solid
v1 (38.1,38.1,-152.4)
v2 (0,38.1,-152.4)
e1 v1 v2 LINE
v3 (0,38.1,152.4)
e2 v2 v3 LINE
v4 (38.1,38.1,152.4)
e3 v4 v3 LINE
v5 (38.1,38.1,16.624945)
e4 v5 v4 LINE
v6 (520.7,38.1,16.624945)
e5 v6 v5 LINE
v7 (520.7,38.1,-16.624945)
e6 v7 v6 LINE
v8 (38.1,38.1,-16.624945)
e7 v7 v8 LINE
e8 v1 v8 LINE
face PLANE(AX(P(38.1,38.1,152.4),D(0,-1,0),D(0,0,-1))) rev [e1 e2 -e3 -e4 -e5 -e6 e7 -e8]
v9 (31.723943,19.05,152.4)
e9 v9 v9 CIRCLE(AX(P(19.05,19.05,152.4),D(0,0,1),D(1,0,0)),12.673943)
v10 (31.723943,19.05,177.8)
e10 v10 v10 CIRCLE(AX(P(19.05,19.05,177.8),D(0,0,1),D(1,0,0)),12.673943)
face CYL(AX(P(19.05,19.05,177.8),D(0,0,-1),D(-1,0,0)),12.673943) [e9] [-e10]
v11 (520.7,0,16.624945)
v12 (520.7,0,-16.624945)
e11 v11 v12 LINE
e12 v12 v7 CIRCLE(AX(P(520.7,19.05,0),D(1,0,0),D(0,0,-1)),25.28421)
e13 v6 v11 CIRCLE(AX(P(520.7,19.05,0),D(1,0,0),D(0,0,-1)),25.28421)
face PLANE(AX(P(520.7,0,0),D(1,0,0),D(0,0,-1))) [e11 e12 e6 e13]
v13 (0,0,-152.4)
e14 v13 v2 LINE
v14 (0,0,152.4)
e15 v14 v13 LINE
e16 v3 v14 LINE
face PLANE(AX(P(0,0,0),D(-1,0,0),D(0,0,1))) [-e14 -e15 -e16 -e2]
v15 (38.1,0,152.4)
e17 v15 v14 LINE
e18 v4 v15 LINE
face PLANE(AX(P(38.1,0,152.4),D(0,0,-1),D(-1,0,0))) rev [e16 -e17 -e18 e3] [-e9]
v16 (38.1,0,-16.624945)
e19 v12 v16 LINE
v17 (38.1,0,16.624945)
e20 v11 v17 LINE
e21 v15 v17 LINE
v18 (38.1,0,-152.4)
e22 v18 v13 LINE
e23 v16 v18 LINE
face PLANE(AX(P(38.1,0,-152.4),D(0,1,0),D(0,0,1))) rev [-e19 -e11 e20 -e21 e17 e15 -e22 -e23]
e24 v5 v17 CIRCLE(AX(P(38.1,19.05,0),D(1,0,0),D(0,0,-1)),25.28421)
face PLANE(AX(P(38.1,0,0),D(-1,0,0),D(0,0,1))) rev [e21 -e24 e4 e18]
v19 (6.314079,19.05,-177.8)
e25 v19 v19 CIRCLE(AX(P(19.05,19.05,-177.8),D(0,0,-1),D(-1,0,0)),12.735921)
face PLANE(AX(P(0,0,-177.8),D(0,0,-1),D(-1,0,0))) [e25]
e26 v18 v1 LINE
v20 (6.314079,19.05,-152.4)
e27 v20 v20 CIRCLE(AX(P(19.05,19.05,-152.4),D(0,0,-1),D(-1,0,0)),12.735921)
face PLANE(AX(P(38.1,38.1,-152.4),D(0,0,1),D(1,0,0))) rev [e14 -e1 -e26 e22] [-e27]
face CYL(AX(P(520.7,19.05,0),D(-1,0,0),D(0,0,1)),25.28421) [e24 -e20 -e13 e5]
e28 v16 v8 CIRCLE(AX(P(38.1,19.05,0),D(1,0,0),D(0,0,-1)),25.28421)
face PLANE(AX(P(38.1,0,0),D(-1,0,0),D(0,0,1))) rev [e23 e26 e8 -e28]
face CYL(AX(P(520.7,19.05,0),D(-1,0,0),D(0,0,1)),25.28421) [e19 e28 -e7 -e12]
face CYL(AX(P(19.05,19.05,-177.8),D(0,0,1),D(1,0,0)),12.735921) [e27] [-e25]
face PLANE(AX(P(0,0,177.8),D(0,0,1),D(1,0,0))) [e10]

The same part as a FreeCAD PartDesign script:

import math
import FreeCAD as App
import Part
import Sketcher
Q = App.Units.Quantity

doc = App.newDocument("Part")
params = doc.addObject("Spreadsheet::Sheet", "Params")
for row, (alias, value) in enumerate([
    ("sketch1_height", "12 in"),
    ("sketch1_width", "1.5 in"),
    ("pad1_length", "1.5 in"),
    ("pad2_length", "1 in"),
    ("pad3_length", "1 in"),
    ("pad4_length", "19 in"),
], start=1):
    params.set(f"A{row}", alias)
    params.set(f"B{row}", "=" + value)
    params.setAlias(f"B{row}", alias)

body = doc.addObject("PartDesign::Body", "Body")

sketch1 = doc.addObject("Sketcher::SketchObject", "Sketch")
body.addObject(sketch1)
sketch1.AttachmentSupport = (doc.YZ_Plane, [""])
sketch1.MapMode = "FlatFace"
sketch1.addGeometry(Part.LineSegment(App.Vector(38, 152, 0), App.Vector(0, 152, 0)), False)
sketch1.addGeometry(Part.LineSegment(App.Vector(0, 152, 0), App.Vector(0, -152, 0)), False)
sketch1.addGeometry(Part.LineSegment(App.Vector(0, -152, 0), App.Vector(38, -152, 0)), False)
sketch1.addGeometry(Part.LineSegment(App.Vector(38, -152, 0), App.Vector(38, 152, 0)), False)
sketch1.addConstraint(Sketcher.Constraint("Coincident", 0, 2, 1, 1))
sketch1.addConstraint(Sketcher.Constraint("Coincident", 1, 2, 2, 1))
sketch1.addConstraint(Sketcher.Constraint("Coincident", 2, 2, 3, 1))
sketch1.addConstraint(Sketcher.Constraint("Coincident", 3, 2, 0, 1))
sketch1.addConstraint(Sketcher.Constraint("Horizontal", 0))
sketch1.addConstraint(Sketcher.Constraint("Vertical", 1))
sketch1.addConstraint(Sketcher.Constraint("Horizontal", 2))
sketch1.addConstraint(Sketcher.Constraint("Vertical", 3))
sketch1.addConstraint(Sketcher.Constraint("Symmetric", 0, 2, 1, 2, -1, 1))
sketch1.addConstraint(Sketcher.Constraint("DistanceY", 1, 2, 1, 1, Q("12 in")))
sketch1.addConstraint(Sketcher.Constraint("DistanceX", 0, 2, 0, 1, Q("1.5 in")))
sketch1.setExpression("Constraints[9]", "Params.sketch1_height")
sketch1.setExpression("Constraints[10]", "Params.sketch1_width")
pad1 = doc.addObject("PartDesign::Pad", "Pad")
body.addObject(pad1)
pad1.Profile = sketch1
pad1.setExpression("Length", "Params.pad1_length")

sketch2 = doc.addObject("Sketcher::SketchObject", "Sketch001")
body.addObject(sketch2)
sketch2.AttachmentSupport = (doc.XY_Plane, [""])
sketch2.MapMode = "FlatFace"
sketch2.AttachmentOffset = App.Placement(App.Vector(0, 0, 6 * 25.4), App.Rotation())
sketch2.addGeometry(Part.ArcOfCircle(Part.Circle(App.Vector(19, 19, 0), App.Vector(0, 0, 1), 13), math.radians(-135), math.radians(-45)), False)
sketch2.addGeometry(Part.ArcOfCircle(Part.Circle(App.Vector(19, 19, 0), App.Vector(0, 0, 1), 13), math.radians(-45), math.radians(0)), False)
sketch2.addGeometry(Part.ArcOfCircle(Part.Circle(App.Vector(19, 19, 0), App.Vector(0, 0, 1), 13), math.radians(0), math.radians(45)), False)
sketch2.addGeometry(Part.ArcOfCircle(Part.Circle(App.Vector(19, 19, 0), App.Vector(0, 0, 1), 13), math.radians(45), math.radians(135)), False)
sketch2.addGeometry(Part.ArcOfCircle(Part.Circle(App.Vector(19, 19, 0), App.Vector(0, 0, 1), 13), math.radians(135), math.radians(225)), False)
sketch2.addConstraint(Sketcher.Constraint("Tangent", 0, 2, 1, 1))
sketch2.addConstraint(Sketcher.Constraint("Tangent", 1, 2, 2, 1))
sketch2.addConstraint(Sketcher.Constraint("Tangent", 2, 2, 3, 1))
sketch2.addConstraint(Sketcher.Constraint("Tangent", 3, 2, 4, 1))
sketch2.addConstraint(Sketcher.Constraint("Tangent", 4, 2, 0, 1))
sketch2.addConstraint(Sketcher.Constraint("Coincident", 2, 3, 0, 3))
sketch2.addConstraint(Sketcher.Constraint("Horizontal", 4, 3, 1, 2))
sketch2.addConstraint(Sketcher.Constraint("Horizontal", 2, 2, 3, 2))
sketch2.addConstraint(Sketcher.Constraint("Horizontal", 0, 2, 4, 2))
sketch2.addConstraint(Sketcher.Constraint("Vertical", 0, 2, 2, 2))
sketch2.addConstraint(Sketcher.Constraint("DistanceX", -1, 1, 0, 3, Q("0.75 in")))
sketch2.addConstraint(Sketcher.Constraint("DistanceY", -1, 1, 0, 3, Q("0.75 in")))
sketch2.addConstraint(Sketcher.Constraint("Radius", 0, Q("12.673943 mm")))
sketch2.addConstraint(Sketcher.Constraint("DistanceX", -1, 1, 0, 2, Q("28.011831 mm")))
pad2 = doc.addObject("PartDesign::Pad", "Pad001")
body.addObject(pad2)
pad2.Profile = sketch2
pad2.setExpression("Length", "Params.pad2_length")

sketch3 = doc.addObject("Sketcher::SketchObject", "Sketch002")
body.addObject(sketch3)
sketch3.AttachmentSupport = (doc.XY_Plane, [""])
sketch3.MapMode = "FlatFace"
sketch3.AttachmentOffset = App.Placement(App.Vector(0, 0, -6 * 25.4), App.Rotation())
sketch3.addGeometry(Part.ArcOfCircle(Part.Circle(App.Vector(19, 19, 0), App.Vector(0, 0, 1), 13), math.radians(-135), math.radians(-45)), False)
sketch3.addGeometry(Part.ArcOfCircle(Part.Circle(App.Vector(19, 19, 0), App.Vector(0, 0, 1), 13), math.radians(180), math.radians(225)), False)
sketch3.addGeometry(Part.ArcOfCircle(Part.Circle(App.Vector(19, 19, 0), App.Vector(0, 0, 1), 13), math.radians(135), math.radians(180)), False)
sketch3.addGeometry(Part.ArcOfCircle(Part.Circle(App.Vector(19, 19, 0), App.Vector(0, 0, 1), 13), math.radians(45), math.radians(135)), False)
sketch3.addGeometry(Part.ArcOfCircle(Part.Circle(App.Vector(19, 19, 0), App.Vector(0, 0, 1), 13), math.radians(-45), math.radians(45)), False)
sketch3.addConstraint(Sketcher.Constraint("Tangent", 0, 1, 1, 2))
sketch3.addConstraint(Sketcher.Constraint("Tangent", 1, 1, 2, 2))
sketch3.addConstraint(Sketcher.Constraint("Tangent", 2, 1, 3, 2))
sketch3.addConstraint(Sketcher.Constraint("Tangent", 3, 1, 4, 2))
sketch3.addConstraint(Sketcher.Constraint("Tangent", 4, 1, 0, 2))
sketch3.addConstraint(Sketcher.Constraint("Coincident", 2, 3, 0, 3))
sketch3.addConstraint(Sketcher.Constraint("Horizontal", 4, 3, 1, 1))
sketch3.addConstraint(Sketcher.Constraint("Horizontal", 2, 1, 3, 1))
sketch3.addConstraint(Sketcher.Constraint("Horizontal", 0, 1, 4, 1))
sketch3.addConstraint(Sketcher.Constraint("Vertical", 0, 1, 2, 1))
sketch3.addConstraint(Sketcher.Constraint("DistanceX", -1, 1, 0, 3, Q("0.75 in")))
sketch3.addConstraint(Sketcher.Constraint("DistanceY", -1, 1, 0, 3, Q("0.75 in")))
sketch3.addConstraint(Sketcher.Constraint("Radius", 0, Q("12.735921 mm")))
sketch3.addConstraint(Sketcher.Constraint("DistanceX", -1, 1, 0, 1, Q("10.044344 mm")))
pad3 = doc.addObject("PartDesign::Pad", "Pad002")
body.addObject(pad3)
pad3.Profile = sketch3
pad3.setExpression("Length", "Params.pad3_length")
pad3.Reversed = True

sketch4 = doc.addObject("Sketcher::SketchObject", "Sketch003")
body.addObject(sketch4)
sketch4.AttachmentSupport = (doc.YZ_Plane, [""])
sketch4.MapMode = "FlatFace"
sketch4.AttachmentOffset = App.Placement(App.Vector(0, 0, 1.5 * 25.4), App.Rotation())
sketch4.addGeometry(Part.ArcOfCircle(Part.Circle(App.Vector(19, 0, 0), App.Vector(0, 0, 1), 25), math.radians(41), math.radians(139)), False)
sketch4.addGeometry(Part.LineSegment(App.Vector(0, 17, 0), App.Vector(0, -17, 0)), False)
sketch4.addGeometry(Part.ArcOfCircle(Part.Circle(App.Vector(19, 0, 0), App.Vector(0, 0, 1), 25), math.radians(-139), math.radians(-90)), False)
sketch4.addGeometry(Part.ArcOfCircle(Part.Circle(App.Vector(19, 0, 0), App.Vector(0, 0, 1), 25), math.radians(-90), math.radians(-41)), False)
sketch4.addGeometry(Part.LineSegment(App.Vector(38, -17, 0), App.Vector(38, 17, 0)), False)
sketch4.addConstraint(Sketcher.Constraint("Coincident", 0, 2, 1, 1))
sketch4.addConstraint(Sketcher.Constraint("Coincident", 1, 2, 2, 1))
sketch4.addConstraint(Sketcher.Constraint("Tangent", 2, 2, 3, 1))
sketch4.addConstraint(Sketcher.Constraint("Coincident", 3, 2, 4, 1))
sketch4.addConstraint(Sketcher.Constraint("Coincident", 4, 2, 0, 1))
sketch4.addConstraint(Sketcher.Constraint("Vertical", 1))
sketch4.addConstraint(Sketcher.Constraint("Vertical", 4))
sketch4.addConstraint(Sketcher.Constraint("Coincident", 2, 3, 0, 3))
sketch4.addConstraint(Sketcher.Constraint("Equal", 0, 2))
sketch4.addConstraint(Sketcher.Constraint("Equal", 2, 3))
sketch4.addConstraint(Sketcher.Constraint("Symmetric", 0, 2, 1, 2, -1, 1))
sketch4.addConstraint(Sketcher.Constraint("Horizontal", 1, 2, 3, 2))
sketch4.addConstraint(Sketcher.Constraint("Vertical", 3, 3, 2, 2))
sketch4.addConstraint(Sketcher.Constraint("DistanceX", -1, 1, 3, 2, Q("1.5 in")))
sketch4.addConstraint(Sketcher.Constraint("Radius", 0, Q("25.28421 mm")))
pad4 = doc.addObject("PartDesign::Pad", "Pad003")
body.addObject(pad4)
pad4.Profile = sketch4
pad4.setExpression("Length", "Params.pad4_length")

doc.recompute()
